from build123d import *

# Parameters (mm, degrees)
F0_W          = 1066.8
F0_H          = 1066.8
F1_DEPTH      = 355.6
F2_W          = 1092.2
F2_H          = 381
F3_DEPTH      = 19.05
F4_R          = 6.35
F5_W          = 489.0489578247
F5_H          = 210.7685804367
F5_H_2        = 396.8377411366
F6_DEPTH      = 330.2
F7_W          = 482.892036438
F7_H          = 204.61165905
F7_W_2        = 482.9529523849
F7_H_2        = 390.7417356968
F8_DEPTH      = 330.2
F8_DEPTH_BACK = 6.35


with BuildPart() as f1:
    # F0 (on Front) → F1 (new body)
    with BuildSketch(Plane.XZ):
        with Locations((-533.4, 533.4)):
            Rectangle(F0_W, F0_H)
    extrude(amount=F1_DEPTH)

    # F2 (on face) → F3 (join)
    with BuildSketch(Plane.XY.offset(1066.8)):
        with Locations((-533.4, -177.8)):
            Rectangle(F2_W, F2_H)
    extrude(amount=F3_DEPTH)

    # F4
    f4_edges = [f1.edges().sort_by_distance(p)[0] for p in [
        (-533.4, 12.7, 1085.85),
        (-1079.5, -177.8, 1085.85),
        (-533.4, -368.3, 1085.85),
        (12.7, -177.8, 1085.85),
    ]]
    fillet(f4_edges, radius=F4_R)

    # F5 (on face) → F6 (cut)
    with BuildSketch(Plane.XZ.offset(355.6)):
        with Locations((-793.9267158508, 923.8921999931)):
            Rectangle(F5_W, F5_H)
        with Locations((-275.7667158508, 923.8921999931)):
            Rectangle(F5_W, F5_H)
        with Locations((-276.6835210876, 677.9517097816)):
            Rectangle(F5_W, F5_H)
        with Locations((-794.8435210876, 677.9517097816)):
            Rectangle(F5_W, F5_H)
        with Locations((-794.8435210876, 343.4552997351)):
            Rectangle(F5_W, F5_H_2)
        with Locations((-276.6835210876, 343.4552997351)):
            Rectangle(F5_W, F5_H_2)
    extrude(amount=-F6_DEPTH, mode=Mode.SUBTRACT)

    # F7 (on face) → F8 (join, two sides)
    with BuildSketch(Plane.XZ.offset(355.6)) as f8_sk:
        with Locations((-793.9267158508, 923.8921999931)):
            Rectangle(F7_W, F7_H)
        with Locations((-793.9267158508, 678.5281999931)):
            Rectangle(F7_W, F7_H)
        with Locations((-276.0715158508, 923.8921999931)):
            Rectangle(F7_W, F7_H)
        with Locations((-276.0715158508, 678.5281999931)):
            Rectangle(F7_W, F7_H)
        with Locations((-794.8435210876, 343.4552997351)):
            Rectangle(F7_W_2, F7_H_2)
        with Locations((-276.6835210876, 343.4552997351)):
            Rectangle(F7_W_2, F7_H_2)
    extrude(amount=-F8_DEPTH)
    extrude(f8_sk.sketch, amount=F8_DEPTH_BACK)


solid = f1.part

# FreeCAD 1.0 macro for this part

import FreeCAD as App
import Part
import Sketcher
from FreeCAD import Vector
Q = App.Units.Quantity


def edges_at(feature, points):
    """Names of the edges that pass closest to the given points."""
    edges = feature.Shape.Edges
    near = lambda p: min(range(len(edges)), key=lambda i: edges[i].distToShape(Part.Vertex(*p))[0])
    return sorted({f"Edge{near(p) + 1}" for p in points})


def add_polygon(sketch, points):
    """Adds a closed chain of lines whose ends are joined by coincident constraints."""
    first, n = sketch.GeometryCount, len(points)
    for a, b in zip(points, points[1:] + points[:1]):
        sketch.addGeometry(Part.LineSegment(App.Vector(*a, 0), App.Vector(*b, 0)), False)
    for i in range(n):
        sketch.addConstraint(Sketcher.Constraint("Coincident", first + i, 2, first + (i + 1) % n, 1))

doc = App.newDocument("Part")
params = doc.addObject("Spreadsheet::Sheet", "Params")
for row, (alias, value) in enumerate([
    ("sketch1_width", "42 in"),
    ("pad1_length", "14 in"),
    ("sketch2_width", "43 in"),
    ("sketch2_height", "15 in"),
    ("pad2_length", "0.75 in"),
    ("fillet_radius", "0.25 in"),
    ("pocket1_length", "13 in"),
    ("pad3_length", "13 in"),
    ("pad3_length2", "0.25 in"),
], start=1):
    params.set(f"A{row}", alias)
    params.set(f"B{row}", "=" + value)
    params.setAlias(f"B{row}", alias)

body = doc.addObject("PartDesign::Body", "Body")

# Sketch on XZ plane
sketch1 = doc.addObject("Sketcher::SketchObject", "Sketch")
body.addObject(sketch1)
sketch1.AttachmentSupport = (doc.XZ_Plane, [""])
sketch1.MapMode = "FlatFace"
add_polygon(sketch1, [(-1066.8, 1066.8), (-1066.8, 0), (0, 0), (0, 1066.8)])  # lines 0-3
sketch1.addConstraint(Sketcher.Constraint("Vertical", 0))
sketch1.addConstraint(Sketcher.Constraint("Horizontal", 1))
sketch1.addConstraint(Sketcher.Constraint("Vertical", 2))
sketch1.addConstraint(Sketcher.Constraint("Horizontal", 3))
sketch1.addConstraint(Sketcher.Constraint("Coincident", 1, 2, -1, 1))
sketch1.addConstraint(Sketcher.Constraint("Equal", 3, 0))
sketch1.addConstraint(Sketcher.Constraint("DistanceX", 1, 1, 1, 2, Q("42 in")))
sketch1.setExpression("Constraints[10]", "Params.sketch1_width")
pad1 = doc.addObject("PartDesign::Pad", "Pad")
body.addObject(pad1)
pad1.Profile = sketch1
pad1.setExpression("Length", "Params.pad1_length")

# Sketch on XY plane
sketch2 = doc.addObject("Sketcher::SketchObject", "Sketch001")
body.addObject(sketch2)
sketch2.AttachmentSupport = (doc.XY_Plane, [""])
sketch2.MapMode = "FlatFace"
sketch2.AttachmentOffset = App.Placement(Vector(0, 0, 42 * 25.4), App.Rotation())
add_polygon(sketch2, [(-1079.5, 12.7), (-1079.5, -368.3), (12.7, -368.3), (12.7, 12.7)])  # lines 0-3
sketch2.addConstraint(Sketcher.Constraint("Vertical", 0))
sketch2.addConstraint(Sketcher.Constraint("Horizontal", 1))
sketch2.addConstraint(Sketcher.Constraint("Vertical", 2))
sketch2.addConstraint(Sketcher.Constraint("Horizontal", 3))
sketch2.addConstraint(Sketcher.Constraint("DistanceX", 1, 1, 1, 2, Q("43 in")))
sketch2.addConstraint(Sketcher.Constraint("DistanceY", 0, 2, 0, 1, Q("15 in")))
sketch2.addConstraint(Sketcher.Constraint("DistanceX", 0, 2, -1, 1, Q("42.5 in")))
sketch2.addConstraint(Sketcher.Constraint("DistanceY", 0, 2, -1, 1, Q("14.5 in")))
sketch2.setExpression("Constraints[8]", "Params.sketch2_width")
sketch2.setExpression("Constraints[9]", "Params.sketch2_height")
pad2 = doc.addObject("PartDesign::Pad", "Pad001")
body.addObject(pad2)
pad2.Profile = sketch2
pad2.setExpression("Length", "Params.pad2_length")
doc.recompute()

fillet = doc.addObject("PartDesign::Fillet", "Fillet")
body.addObject(fillet)
fillet.Base = (pad2, edges_at(pad2, [
    (-533.4, 12.7, 1085.85),
    (-1079.5, -177.8, 1085.85),
    (-533.4, -368.3, 1085.85),
    (12.7, -177.8, 1085.85),
]))
fillet.setExpression("Radius", "Params.fillet_radius")

# Sketch on XZ plane
sketch3 = doc.addObject("Sketcher::SketchObject", "Sketch002")
body.addObject(sketch3)
sketch3.AttachmentSupport = (doc.XZ_Plane, [""])
sketch3.MapMode = "FlatFace"
sketch3.AttachmentOffset = App.Placement(Vector(0, 0, 14 * 25.4), App.Rotation())
add_polygon(sketch3, [(-1038.451195, 1029.27649), (-1038.451195, 818.50791), (-549.402237, 818.50791), (-549.402237, 1029.27649)])  # lines 0-3
add_polygon(sketch3, [(-520.291195, 1029.27649), (-520.291195, 818.50791), (-31.242237, 818.50791), (-31.242237, 1029.27649)])  # lines 4-7
add_polygon(sketch3, [(-521.208, 783.336), (-521.208, 572.56742), (-32.159042, 572.56742), (-32.159042, 783.336)])  # lines 8-11
add_polygon(sketch3, [(-1039.368, 783.336), (-1039.368, 572.56742), (-550.319042, 572.56742), (-550.319042, 783.336)])  # lines 12-15
add_polygon(sketch3, [(-1039.368, 541.87417), (-1039.368, 145.036429), (-550.319042, 145.036429), (-550.319042, 541.87417)])  # lines 16-19
add_polygon(sketch3, [(-521.208, 541.87417), (-521.208, 145.036429), (-32.159042, 145.036429), (-32.159042, 541.87417)])  # lines 20-23
sketch3.addConstraint(Sketcher.Constraint("Vertical", 0))
sketch3.addConstraint(Sketcher.Constraint("Horizontal", 1))
sketch3.addConstraint(Sketcher.Constraint("Vertical", 2))
sketch3.addConstraint(Sketcher.Constraint("Horizontal", 3))
sketch3.addConstraint(Sketcher.Constraint("Vertical", 4))
sketch3.addConstraint(Sketcher.Constraint("Horizontal", 5))
sketch3.addConstraint(Sketcher.Constraint("Vertical", 6))
sketch3.addConstraint(Sketcher.Constraint("Horizontal", 7))
sketch3.addConstraint(Sketcher.Constraint("Vertical", 8))
sketch3.addConstraint(Sketcher.Constraint("Horizontal", 9))
sketch3.addConstraint(Sketcher.Constraint("Vertical", 10))
sketch3.addConstraint(Sketcher.Constraint("Horizontal", 11))
sketch3.addConstraint(Sketcher.Constraint("Vertical", 12))
sketch3.addConstraint(Sketcher.Constraint("Horizontal", 13))
sketch3.addConstraint(Sketcher.Constraint("Vertical", 14))
sketch3.addConstraint(Sketcher.Constraint("Horizontal", 15))
sketch3.addConstraint(Sketcher.Constraint("Vertical", 16))
sketch3.addConstraint(Sketcher.Constraint("Horizontal", 17))
sketch3.addConstraint(Sketcher.Constraint("Vertical", 18))
sketch3.addConstraint(Sketcher.Constraint("Horizontal", 19))
sketch3.addConstraint(Sketcher.Constraint("Vertical", 20))
sketch3.addConstraint(Sketcher.Constraint("Horizontal", 21))
sketch3.addConstraint(Sketcher.Constraint("Vertical", 22))
sketch3.addConstraint(Sketcher.Constraint("Horizontal", 23))
sketch3.addConstraint(Sketcher.Constraint("Horizontal", 1, 2, 4, 2))
sketch3.addConstraint(Sketcher.Constraint("Horizontal", 3, 2, 6, 2))
sketch3.addConstraint(Sketcher.Constraint("Horizontal", 9, 2, 12, 2))
sketch3.addConstraint(Sketcher.Constraint("Horizontal", 11, 2, 14, 2))
sketch3.addConstraint(Sketcher.Constraint("Horizontal", 17, 2, 20, 2))
sketch3.addConstraint(Sketcher.Constraint("Horizontal", 19, 2, 22, 2))
sketch3.addConstraint(Sketcher.Constraint("Vertical", 15, 2, 16, 2))
sketch3.addConstraint(Sketcher.Constraint("Vertical", 14, 2, 17, 2))
sketch3.addConstraint(Sketcher.Constraint("Vertical", 11, 2, 20, 2))
sketch3.addConstraint(Sketcher.Constraint("Vertical", 10, 2, 21, 2))
sketch3.addConstraint(Sketcher.Constraint("Equal", 3, 5))
sketch3.addConstraint(Sketcher.Constraint("Equal", 7, 9))
sketch3.addConstraint(Sketcher.Constraint("Equal", 11, 13))
sketch3.addConstraint(Sketcher.Constraint("Equal", 6, 8))
sketch3.addConstraint(Sketcher.Constraint("DistanceX", 0, 2, 4, 2, Q("20.4 in")))
sketch3.addConstraint(Sketcher.Constraint("DistanceX", 12, 2, 8, 2, Q("20.4 in")))
sketch3.addConstraint(Sketcher.Constraint("DistanceX", 8, 2, -1, 1, Q("20.52 in")))
sketch3.addConstraint(Sketcher.Constraint("DistanceY", -1, 1, 10, 2, Q("30.84 in")))
sketch3.addConstraint(Sketcher.Constraint("DistanceY", 0, 2, 0, 1, 210.76858))
sketch3.addConstraint(Sketcher.Constraint("DistanceY", 16, 2, 16, 1, 396.837741))
sketch3.addConstraint(Sketcher.Constraint("DistanceX", 1, 1, 1, 2, 489.048958))
sketch3.addConstraint(Sketcher.Constraint("DistanceY", -1, 1, 0, 2, 818.50791))
sketch3.addConstraint(Sketcher.Constraint("DistanceY", -1, 1, 16, 2, 145.036429))
sketch3.addConstraint(Sketcher.Constraint("DistanceX", 0, 2, -1, 1, 1038.451195))
pocket1 = doc.addObject("PartDesign::Pocket", "Pocket")
body.addObject(pocket1)
pocket1.Profile = sketch3
pocket1.setExpression("Length", "Params.pocket1_length")

# Sketch on XZ plane
sketch4 = doc.addObject("Sketcher::SketchObject", "Sketch003")
body.addObject(sketch4)
sketch4.AttachmentSupport = (doc.XZ_Plane, [""])
sketch4.MapMode = "FlatFace"
sketch4.AttachmentOffset = App.Placement(Vector(0, 0, 14 * 25.4), App.Rotation())
add_polygon(sketch4, [(-1035.372734, 1026.19803), (-1035.372734, 821.58637), (-552.480698, 821.58637), (-552.480698, 1026.19803)])  # lines 0-3
add_polygon(sketch4, [(-1035.372734, 780.83403), (-1035.372734, 576.22237), (-552.480698, 576.22237), (-552.480698, 780.83403)])  # lines 4-7
add_polygon(sketch4, [(-517.517534, 1026.19803), (-517.517534, 821.58637), (-34.625498, 821.58637), (-34.625498, 1026.19803)])  # lines 8-11
add_polygon(sketch4, [(-517.517534, 780.83403), (-517.517534, 576.22237), (-34.625498, 576.22237), (-34.625498, 780.83403)])  # lines 12-15
add_polygon(sketch4, [(-1036.319997, 538.826168), (-1036.319997, 148.084432), (-553.367045, 148.084432), (-553.367045, 538.826168)])  # lines 16-19
add_polygon(sketch4, [(-518.159997, 538.826168), (-518.159997, 148.084432), (-35.207045, 148.084432), (-35.207045, 538.826168)])  # lines 20-23
sketch4.addConstraint(Sketcher.Constraint("Vertical", 0))
sketch4.addConstraint(Sketcher.Constraint("Horizontal", 1))
sketch4.addConstraint(Sketcher.Constraint("Vertical", 2))
sketch4.addConstraint(Sketcher.Constraint("Horizontal", 3))
sketch4.addConstraint(Sketcher.Constraint("Vertical", 4))
sketch4.addConstraint(Sketcher.Constraint("Horizontal", 5))
sketch4.addConstraint(Sketcher.Constraint("Vertical", 6))
sketch4.addConstraint(Sketcher.Constraint("Horizontal", 7))
sketch4.addConstraint(Sketcher.Constraint("Vertical", 8))
sketch4.addConstraint(Sketcher.Constraint("Horizontal", 9))
sketch4.addConstraint(Sketcher.Constraint("Vertical", 10))
sketch4.addConstraint(Sketcher.Constraint("Horizontal", 11))
sketch4.addConstraint(Sketcher.Constraint("Vertical", 12))
sketch4.addConstraint(Sketcher.Constraint("Horizontal", 13))
sketch4.addConstraint(Sketcher.Constraint("Vertical", 14))
sketch4.addConstraint(Sketcher.Constraint("Horizontal", 15))
sketch4.addConstraint(Sketcher.Constraint("Vertical", 16))
sketch4.addConstraint(Sketcher.Constraint("Horizontal", 17))
sketch4.addConstraint(Sketcher.Constraint("Vertical", 18))
sketch4.addConstraint(Sketcher.Constraint("Horizontal", 19))
sketch4.addConstraint(Sketcher.Constraint("Vertical", 20))
sketch4.addConstraint(Sketcher.Constraint("Horizontal", 21))
sketch4.addConstraint(Sketcher.Constraint("Vertical", 22))
sketch4.addConstraint(Sketcher.Constraint("Horizontal", 23))
sketch4.addConstraint(Sketcher.Constraint("Horizontal", 1, 2, 8, 2))
sketch4.addConstraint(Sketcher.Constraint("Horizontal", 3, 2, 10, 2))
sketch4.addConstraint(Sketcher.Constraint("Horizontal", 5, 2, 12, 2))
sketch4.addConstraint(Sketcher.Constraint("Horizontal", 7, 2, 14, 2))
sketch4.addConstraint(Sketcher.Constraint("Horizontal", 17, 2, 20, 2))
sketch4.addConstraint(Sketcher.Constraint("Horizontal", 19, 2, 22, 2))
sketch4.addConstraint(Sketcher.Constraint("Vertical", 3, 2, 4, 2))
sketch4.addConstraint(Sketcher.Constraint("Vertical", 2, 2, 5, 2))
sketch4.addConstraint(Sketcher.Constraint("Vertical", 11, 2, 12, 2))
sketch4.addConstraint(Sketcher.Constraint("Vertical", 10, 2, 13, 2))
sketch4.addConstraint(Sketcher.Constraint("Equal", 7, 9))
sketch4.addConstraint(Sketcher.Constraint("Equal", 19, 21))
sketch4.addConstraint(Sketcher.Constraint("Equal", 2, 4))
sketch4.addConstraint(Sketcher.Constraint("DistanceX", 16, 2, -1, 1, Q("40.7999999 in")))
sketch4.addConstraint(Sketcher.Constraint("DistanceX", 20, 2, -1, 1, Q("20.3999999 in")))
sketch4.addConstraint(Sketcher.Constraint("DistanceY", 4, 2, 0, 2, Q("9.66 in")))
sketch4.addConstraint(Sketcher.Constraint("DistanceX", 0, 2, 8, 2, Q("20.388 in")))
sketch4.addConstraint(Sketcher.Constraint("DistanceY", 0, 2, 0, 1, 204.611659))
sketch4.addConstraint(Sketcher.Constraint("DistanceX", 16, 2, 5, 2, 483.8393))
sketch4.addConstraint(Sketcher.Constraint("DistanceX", 1, 1, 1, 2, 482.892036))
sketch4.addConstraint(Sketcher.Constraint("DistanceX", 17, 1, 17, 2, 482.952952))
sketch4.addConstraint(Sketcher.Constraint("DistanceY", 16, 2, 16, 1, 390.741736))
sketch4.addConstraint(Sketcher.Constraint("DistanceY", -1, 1, 0, 2, 821.58637))
sketch4.addConstraint(Sketcher.Constraint("DistanceY", -1, 1, 16, 2, 148.084432))
pad3 = doc.addObject("PartDesign::Pad", "Pad002")
body.addObject(pad3)
pad3.Profile = sketch4
pad3.Type = "TwoLengths"
pad3.setExpression("Length", "Params.pad3_length")
pad3.setExpression("Length2", "Params.pad3_length2")
pad3.Reversed = True

doc.recompute()
